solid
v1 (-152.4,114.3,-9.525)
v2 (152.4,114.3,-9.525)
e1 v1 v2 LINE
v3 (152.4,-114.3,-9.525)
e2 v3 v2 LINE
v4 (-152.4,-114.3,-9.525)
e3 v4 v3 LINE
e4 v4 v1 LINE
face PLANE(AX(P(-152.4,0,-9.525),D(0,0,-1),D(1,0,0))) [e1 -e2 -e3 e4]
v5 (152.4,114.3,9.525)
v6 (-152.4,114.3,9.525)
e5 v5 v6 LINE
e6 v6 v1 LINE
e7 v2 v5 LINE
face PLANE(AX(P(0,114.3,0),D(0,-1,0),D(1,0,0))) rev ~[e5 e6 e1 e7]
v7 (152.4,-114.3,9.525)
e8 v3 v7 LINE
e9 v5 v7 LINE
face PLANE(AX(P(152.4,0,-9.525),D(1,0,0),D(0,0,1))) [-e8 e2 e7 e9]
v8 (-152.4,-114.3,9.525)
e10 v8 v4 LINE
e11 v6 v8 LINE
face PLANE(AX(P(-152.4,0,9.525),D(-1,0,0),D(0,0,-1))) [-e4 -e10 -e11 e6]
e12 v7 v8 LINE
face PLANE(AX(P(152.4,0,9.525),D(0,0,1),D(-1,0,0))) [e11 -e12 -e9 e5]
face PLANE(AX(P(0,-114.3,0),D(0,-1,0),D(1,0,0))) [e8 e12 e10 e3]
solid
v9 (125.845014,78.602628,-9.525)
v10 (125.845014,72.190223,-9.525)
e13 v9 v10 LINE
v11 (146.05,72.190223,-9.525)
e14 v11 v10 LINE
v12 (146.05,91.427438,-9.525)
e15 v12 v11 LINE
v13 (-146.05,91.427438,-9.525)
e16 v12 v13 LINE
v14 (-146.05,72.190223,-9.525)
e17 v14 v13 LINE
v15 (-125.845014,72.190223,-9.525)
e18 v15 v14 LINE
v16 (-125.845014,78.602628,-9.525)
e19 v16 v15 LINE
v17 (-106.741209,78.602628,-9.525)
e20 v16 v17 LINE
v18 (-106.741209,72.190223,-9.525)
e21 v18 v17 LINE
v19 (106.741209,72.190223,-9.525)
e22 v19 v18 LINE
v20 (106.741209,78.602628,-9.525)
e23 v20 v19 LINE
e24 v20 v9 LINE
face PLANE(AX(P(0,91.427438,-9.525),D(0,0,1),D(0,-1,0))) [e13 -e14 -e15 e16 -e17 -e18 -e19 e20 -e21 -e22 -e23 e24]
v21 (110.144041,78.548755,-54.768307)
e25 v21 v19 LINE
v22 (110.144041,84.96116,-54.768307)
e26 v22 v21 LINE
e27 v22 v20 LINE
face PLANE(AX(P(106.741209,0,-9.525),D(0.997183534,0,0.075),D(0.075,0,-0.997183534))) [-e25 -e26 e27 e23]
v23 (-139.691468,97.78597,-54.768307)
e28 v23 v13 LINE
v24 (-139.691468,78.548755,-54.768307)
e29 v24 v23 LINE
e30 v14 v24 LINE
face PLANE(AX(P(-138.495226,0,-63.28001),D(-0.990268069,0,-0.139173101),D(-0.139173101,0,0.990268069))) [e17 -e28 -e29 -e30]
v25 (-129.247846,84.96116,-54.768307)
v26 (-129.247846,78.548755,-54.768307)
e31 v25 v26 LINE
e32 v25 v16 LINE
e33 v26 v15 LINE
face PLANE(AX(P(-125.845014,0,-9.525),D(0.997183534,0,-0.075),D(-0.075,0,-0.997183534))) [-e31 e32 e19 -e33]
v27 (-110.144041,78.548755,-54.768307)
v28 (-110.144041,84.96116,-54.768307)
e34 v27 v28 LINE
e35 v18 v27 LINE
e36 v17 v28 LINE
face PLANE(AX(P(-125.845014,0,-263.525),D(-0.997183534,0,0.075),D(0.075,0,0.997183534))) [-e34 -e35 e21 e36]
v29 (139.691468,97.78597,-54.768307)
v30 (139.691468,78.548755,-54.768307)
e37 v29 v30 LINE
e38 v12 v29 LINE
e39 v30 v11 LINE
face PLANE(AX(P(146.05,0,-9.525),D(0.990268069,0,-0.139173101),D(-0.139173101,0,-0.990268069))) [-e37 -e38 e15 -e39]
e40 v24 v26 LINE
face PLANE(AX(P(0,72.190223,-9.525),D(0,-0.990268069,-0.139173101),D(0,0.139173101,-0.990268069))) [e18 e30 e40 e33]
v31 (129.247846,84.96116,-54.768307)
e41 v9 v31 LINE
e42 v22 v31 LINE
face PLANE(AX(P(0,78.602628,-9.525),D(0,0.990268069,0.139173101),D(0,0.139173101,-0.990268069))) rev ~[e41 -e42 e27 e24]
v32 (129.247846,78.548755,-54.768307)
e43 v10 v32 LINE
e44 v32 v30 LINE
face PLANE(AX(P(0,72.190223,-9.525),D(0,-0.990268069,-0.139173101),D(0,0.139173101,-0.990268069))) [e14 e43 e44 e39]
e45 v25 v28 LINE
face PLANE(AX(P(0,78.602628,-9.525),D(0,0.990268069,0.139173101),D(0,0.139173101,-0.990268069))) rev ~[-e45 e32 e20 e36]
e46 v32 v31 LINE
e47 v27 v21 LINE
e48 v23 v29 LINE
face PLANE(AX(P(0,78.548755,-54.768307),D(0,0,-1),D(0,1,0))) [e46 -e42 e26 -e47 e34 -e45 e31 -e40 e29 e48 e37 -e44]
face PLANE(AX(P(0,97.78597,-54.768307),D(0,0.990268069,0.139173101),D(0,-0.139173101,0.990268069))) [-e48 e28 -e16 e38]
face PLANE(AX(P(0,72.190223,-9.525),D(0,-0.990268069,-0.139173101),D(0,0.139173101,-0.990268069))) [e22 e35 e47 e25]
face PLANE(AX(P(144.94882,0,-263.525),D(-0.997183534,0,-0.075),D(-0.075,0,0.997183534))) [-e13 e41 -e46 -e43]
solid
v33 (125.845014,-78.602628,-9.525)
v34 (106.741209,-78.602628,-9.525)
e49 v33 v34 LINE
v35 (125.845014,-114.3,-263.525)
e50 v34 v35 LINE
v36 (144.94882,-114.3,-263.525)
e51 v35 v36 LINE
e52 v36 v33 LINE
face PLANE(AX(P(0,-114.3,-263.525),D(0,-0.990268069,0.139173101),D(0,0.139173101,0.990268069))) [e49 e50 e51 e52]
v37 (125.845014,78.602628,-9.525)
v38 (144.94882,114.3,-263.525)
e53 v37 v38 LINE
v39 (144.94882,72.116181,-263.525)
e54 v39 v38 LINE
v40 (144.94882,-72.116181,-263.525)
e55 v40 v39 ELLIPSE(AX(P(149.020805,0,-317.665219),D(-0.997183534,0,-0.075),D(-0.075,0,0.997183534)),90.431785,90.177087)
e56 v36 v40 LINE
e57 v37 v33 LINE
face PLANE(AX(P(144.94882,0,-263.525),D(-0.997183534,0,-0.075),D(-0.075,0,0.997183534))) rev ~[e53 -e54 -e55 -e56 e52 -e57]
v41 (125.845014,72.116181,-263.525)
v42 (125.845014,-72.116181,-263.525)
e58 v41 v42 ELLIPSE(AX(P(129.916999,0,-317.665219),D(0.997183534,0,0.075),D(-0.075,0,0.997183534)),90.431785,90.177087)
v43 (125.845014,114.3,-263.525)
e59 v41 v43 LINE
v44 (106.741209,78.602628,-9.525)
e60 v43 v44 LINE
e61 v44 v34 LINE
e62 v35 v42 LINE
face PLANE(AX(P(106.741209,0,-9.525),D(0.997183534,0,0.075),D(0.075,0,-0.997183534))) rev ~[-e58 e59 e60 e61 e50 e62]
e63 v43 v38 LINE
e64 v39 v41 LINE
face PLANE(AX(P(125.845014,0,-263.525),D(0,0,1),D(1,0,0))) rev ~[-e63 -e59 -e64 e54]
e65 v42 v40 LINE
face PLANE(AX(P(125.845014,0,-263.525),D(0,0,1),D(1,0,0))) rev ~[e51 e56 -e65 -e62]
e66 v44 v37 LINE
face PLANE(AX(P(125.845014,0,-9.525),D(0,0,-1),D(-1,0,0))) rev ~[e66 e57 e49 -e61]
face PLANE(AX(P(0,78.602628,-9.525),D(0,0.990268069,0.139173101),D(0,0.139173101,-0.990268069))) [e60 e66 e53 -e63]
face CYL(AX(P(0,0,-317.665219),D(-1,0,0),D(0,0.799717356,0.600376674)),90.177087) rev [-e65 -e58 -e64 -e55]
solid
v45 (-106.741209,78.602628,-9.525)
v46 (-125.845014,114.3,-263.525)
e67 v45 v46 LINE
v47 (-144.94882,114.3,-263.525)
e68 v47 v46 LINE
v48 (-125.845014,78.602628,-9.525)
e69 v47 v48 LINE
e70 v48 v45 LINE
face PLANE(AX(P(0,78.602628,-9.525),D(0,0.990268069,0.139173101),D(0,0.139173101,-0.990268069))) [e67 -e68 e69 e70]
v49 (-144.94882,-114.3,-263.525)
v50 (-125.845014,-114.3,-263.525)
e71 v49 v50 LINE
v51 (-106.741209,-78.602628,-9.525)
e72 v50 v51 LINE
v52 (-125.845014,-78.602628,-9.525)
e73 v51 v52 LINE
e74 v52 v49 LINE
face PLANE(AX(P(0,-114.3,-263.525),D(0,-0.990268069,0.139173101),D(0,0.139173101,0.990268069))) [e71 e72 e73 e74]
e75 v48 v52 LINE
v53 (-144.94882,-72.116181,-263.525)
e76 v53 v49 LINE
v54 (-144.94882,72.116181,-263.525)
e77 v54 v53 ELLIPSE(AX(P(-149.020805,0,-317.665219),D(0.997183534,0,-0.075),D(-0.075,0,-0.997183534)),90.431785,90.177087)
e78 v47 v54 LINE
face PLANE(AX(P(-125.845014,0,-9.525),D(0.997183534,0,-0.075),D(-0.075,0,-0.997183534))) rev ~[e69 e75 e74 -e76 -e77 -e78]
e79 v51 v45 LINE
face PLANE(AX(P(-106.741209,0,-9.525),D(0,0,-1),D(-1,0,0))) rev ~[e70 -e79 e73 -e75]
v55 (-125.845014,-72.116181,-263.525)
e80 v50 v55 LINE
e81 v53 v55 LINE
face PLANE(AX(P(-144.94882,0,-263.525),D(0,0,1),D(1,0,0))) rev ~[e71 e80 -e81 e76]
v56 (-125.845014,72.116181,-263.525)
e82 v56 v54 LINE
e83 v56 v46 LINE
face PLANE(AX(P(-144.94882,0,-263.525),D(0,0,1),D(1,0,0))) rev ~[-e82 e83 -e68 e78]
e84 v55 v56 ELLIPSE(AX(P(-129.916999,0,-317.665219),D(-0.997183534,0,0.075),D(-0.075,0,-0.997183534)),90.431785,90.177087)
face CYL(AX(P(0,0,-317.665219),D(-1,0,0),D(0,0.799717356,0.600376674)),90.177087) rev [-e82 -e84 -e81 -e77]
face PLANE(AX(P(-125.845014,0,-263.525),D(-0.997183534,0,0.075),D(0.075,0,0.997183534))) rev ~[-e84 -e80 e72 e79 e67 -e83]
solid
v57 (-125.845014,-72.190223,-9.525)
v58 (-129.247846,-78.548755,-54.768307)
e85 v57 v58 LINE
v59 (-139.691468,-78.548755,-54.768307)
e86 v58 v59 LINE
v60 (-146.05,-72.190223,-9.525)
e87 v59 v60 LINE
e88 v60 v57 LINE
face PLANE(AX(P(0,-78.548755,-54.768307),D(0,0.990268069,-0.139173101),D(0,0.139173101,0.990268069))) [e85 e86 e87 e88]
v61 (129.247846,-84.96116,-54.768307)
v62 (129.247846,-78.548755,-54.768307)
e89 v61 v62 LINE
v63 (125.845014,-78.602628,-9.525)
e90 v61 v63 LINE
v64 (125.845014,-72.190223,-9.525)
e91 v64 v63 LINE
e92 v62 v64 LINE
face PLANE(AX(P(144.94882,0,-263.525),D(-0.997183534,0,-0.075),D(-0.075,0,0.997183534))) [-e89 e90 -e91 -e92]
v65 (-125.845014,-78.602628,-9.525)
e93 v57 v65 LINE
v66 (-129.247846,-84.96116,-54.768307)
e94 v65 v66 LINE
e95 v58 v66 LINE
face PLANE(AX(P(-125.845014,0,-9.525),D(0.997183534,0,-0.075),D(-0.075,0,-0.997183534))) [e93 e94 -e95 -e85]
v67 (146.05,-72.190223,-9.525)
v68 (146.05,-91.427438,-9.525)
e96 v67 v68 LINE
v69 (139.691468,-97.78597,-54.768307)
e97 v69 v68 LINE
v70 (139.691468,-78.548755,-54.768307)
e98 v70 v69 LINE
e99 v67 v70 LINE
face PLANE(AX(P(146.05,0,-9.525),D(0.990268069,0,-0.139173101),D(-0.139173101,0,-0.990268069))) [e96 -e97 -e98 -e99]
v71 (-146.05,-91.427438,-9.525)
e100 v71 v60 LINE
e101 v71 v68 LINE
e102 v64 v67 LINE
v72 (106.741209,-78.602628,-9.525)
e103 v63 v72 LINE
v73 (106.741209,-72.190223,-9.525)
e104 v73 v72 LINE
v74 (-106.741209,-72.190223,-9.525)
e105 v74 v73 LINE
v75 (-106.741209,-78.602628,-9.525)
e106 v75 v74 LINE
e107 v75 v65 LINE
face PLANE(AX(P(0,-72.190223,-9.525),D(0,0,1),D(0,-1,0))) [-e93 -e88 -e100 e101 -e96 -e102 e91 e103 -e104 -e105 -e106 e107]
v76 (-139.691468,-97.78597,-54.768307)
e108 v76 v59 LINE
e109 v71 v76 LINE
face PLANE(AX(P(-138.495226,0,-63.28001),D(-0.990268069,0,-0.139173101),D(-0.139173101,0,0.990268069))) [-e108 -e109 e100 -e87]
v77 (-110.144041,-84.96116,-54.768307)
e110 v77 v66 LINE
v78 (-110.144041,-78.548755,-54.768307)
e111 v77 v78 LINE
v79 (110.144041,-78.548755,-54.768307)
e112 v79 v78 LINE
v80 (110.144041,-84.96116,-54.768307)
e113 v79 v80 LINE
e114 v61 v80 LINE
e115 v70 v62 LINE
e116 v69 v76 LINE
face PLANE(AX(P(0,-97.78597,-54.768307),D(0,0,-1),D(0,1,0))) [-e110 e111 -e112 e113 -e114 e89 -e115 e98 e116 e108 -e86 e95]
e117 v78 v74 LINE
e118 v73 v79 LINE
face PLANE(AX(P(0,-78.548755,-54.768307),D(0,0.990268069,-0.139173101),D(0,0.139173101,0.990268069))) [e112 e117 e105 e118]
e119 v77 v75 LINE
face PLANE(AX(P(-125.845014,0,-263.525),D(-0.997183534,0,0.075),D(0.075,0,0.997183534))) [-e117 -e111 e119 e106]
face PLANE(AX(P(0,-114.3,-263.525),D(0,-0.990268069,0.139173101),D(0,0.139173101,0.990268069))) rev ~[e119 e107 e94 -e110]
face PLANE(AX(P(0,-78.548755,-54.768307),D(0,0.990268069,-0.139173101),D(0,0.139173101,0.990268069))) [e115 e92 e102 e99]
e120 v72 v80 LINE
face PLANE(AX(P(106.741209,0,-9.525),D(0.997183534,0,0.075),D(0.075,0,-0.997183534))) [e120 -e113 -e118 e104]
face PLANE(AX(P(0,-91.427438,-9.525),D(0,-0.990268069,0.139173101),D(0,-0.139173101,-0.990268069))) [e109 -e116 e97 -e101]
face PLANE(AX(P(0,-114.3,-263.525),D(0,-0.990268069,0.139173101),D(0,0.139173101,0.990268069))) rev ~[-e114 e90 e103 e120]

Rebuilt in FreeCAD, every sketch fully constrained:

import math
import FreeCAD as App
import Part
import Sketcher

V = App.Vector
Q = App.Units.Quantity


def add_polygon(sketch, points):
    """Adds a closed chain of lines whose ends are joined by coincident constraints."""
    first, n = sketch.GeometryCount, len(points)
    for a, b in zip(points, points[1:] + points[:1]):
        sketch.addGeometry(Part.LineSegment(App.Vector(*a, 0), App.Vector(*b, 0)), False)
    for i in range(n):
        sketch.addConstraint(Sketcher.Constraint("Coincident", first + i, 2, first + (i + 1) % n, 1))

doc = App.newDocument("Part")
body = doc.addObject("PartDesign::Body", "Body")

sketch1 = doc.addObject("Sketcher::SketchObject", "Sketch")
body.addObject(sketch1)
sketch1.AttachmentSupport = (doc.XZ_Plane, [""])
sketch1.MapMode = "FlatFace"
add_polygon(sketch1, [(152.4, -9.525), (152.4, 9.525), (-152.4, 9.525), (-152.4, -9.525)])
sketch1.addConstraint(Sketcher.Constraint("Vertical", 0))
sketch1.addConstraint(Sketcher.Constraint("Horizontal", 1))
sketch1.addConstraint(Sketcher.Constraint("Vertical", 2))
sketch1.addConstraint(Sketcher.Constraint("Horizontal", 3))
sketch1.addConstraint(Sketcher.Constraint("Symmetric", 0, 2, 2, 2, -1, 1))
sketch1.addConstraint(Sketcher.Constraint("DistanceX", 1, 2, 1, 1, Q("12 in")))
sketch1.addConstraint(Sketcher.Constraint("DistanceY", 0, 1, 0, 2, Q("0.75 in")))
pad1 = doc.addObject("PartDesign::Pad", "Pad")
body.addObject(pad1)
pad1.Profile = sketch1
pad1.Length = Q("9 in")
pad1.Midplane = True
body2 = doc.addObject("PartDesign::Body", "Body001")

sketch2 = doc.addObject("Sketcher::SketchObject", "Sketch001")
body2.addObject(sketch2)
sketch2.AttachmentSupport = (doc.getObject("XZ_Plane001"), [""])
sketch2.MapMode = "FlatFace"
add_polygon(sketch2, [(144.94882, -263.525), (125.845014, -9.525), (106.741209, -9.525), (125.845014, -263.525)])
sketch2.addConstraint(Sketcher.Constraint("Horizontal", 1))
sketch2.addConstraint(Sketcher.Constraint("Horizontal", 3))
sketch2.addConstraint(Sketcher.Constraint("Parallel", 0, 2))
sketch2.addConstraint(Sketcher.Constraint("Vertical", 0, 2, 2, 2))
sketch2.addConstraint(Sketcher.Constraint("DistanceY", 2, 2, 0, 2, Q("10 in")))
sketch2.addConstraint(Sketcher.Constraint("DistanceY", 0, 2, -1, 1, Q("0.375 in")))
sketch2.addConstraint(Sketcher.Constraint("DistanceX", 1, 2, 1, 1, Q("19.103805 mm")))
sketch2.addConstraint(Sketcher.Constraint("DistanceX", -1, 1, 1, 2, Q("106.741209 mm")))
pad2 = doc.addObject("PartDesign::Pad", "Pad001")
body2.addObject(pad2)
pad2.Profile = sketch2
pad2.Type = "TwoLengths"
pad2.Length = Q("4.5 in")
pad2.Length2 = Q("4.5 in")
pad2.Reversed = True
body3 = doc.addObject("PartDesign::Body", "Body002")

sketch3 = doc.addObject("Sketcher::SketchObject", "Sketch002")
body3.addObject(sketch3)
sketch3.AttachmentSupport = (doc.getObject("XZ_Plane002"), [""])
sketch3.MapMode = "FlatFace"
add_polygon(sketch3, [(-106.741209, -9.525), (-125.845014, -9.525), (-144.94882, -263.525), (-125.845014, -263.525)])
sketch3.addConstraint(Sketcher.Constraint("Horizontal", 0))
sketch3.addConstraint(Sketcher.Constraint("Horizontal", 2))
sketch3.addConstraint(Sketcher.Constraint("Parallel", 1, 3))
sketch3.addConstraint(Sketcher.Constraint("Vertical", 0, 2, 2, 2))
sketch3.addConstraint(Sketcher.Constraint("DistanceY", 1, 2, 0, 2, Q("10 in")))
sketch3.addConstraint(Sketcher.Constraint("DistanceY", 0, 2, -1, 1, Q("0.375 in")))
sketch3.addConstraint(Sketcher.Constraint("DistanceX", 0, 2, 0, 1, Q("19.103805 mm")))
sketch3.addConstraint(Sketcher.Constraint("DistanceX", 1, 2, -1, 1, Q("144.94882 mm")))
pad3 = doc.addObject("PartDesign::Pad", "Pad002")
body3.addObject(pad3)
pad3.Profile = sketch3
pad3.Type = "TwoLengths"
pad3.Length = Q("4.5 in")
pad3.Length2 = Q("4.5 in")
pad3.Reversed = True
body4 = doc.addObject("PartDesign::Body", "Body003")
body4.AllowCompound = True

sketch4 = doc.addObject("Sketcher::SketchObject", "Sketch003")
body4.addObject(sketch4)
sketch4.AttachmentSupport = (doc.getObject("YZ_Plane003"), [""])
sketch4.MapMode = "FlatFace"
add_polygon(sketch4, [(114.3, -9.525), (78.602628, -9.525), (114.3, -263.525)])
sketch4.addGeometry(Part.ArcOfCircle(Part.Circle(V(0, -317.665219, 0), V(0, 0, 1), 90.177087), math.radians(36.89688), math.radians(143.10312)), False)
sketch4.addGeometry(Part.LineSegment(V(-72.116181, -263.525, 0), V(72.116181, -263.525, 0)), False)
add_polygon(sketch4, [(-114.3, -9.525), (-114.3, -263.525), (-78.602628, -9.525)])
sketch4.addConstraint(Sketcher.Constraint("Coincident", 3, 1, 4, 2))
sketch4.addConstraint(Sketcher.Constraint("Coincident", 4, 1, 3, 2))
sketch4.addConstraint(Sketcher.Constraint("Horizontal", 0))
sketch4.addConstraint(Sketcher.Constraint("Vertical", 2))
sketch4.addConstraint(Sketcher.Constraint("Horizontal", 4))
sketch4.addConstraint(Sketcher.Constraint("Vertical", 5))
sketch4.addConstraint(Sketcher.Constraint("Horizontal", 7))
sketch4.addConstraint(Sketcher.Constraint("Symmetric", 1, 2, 5, 2, -2))
sketch4.addConstraint(Sketcher.Constraint("Symmetric", 0, 2, 6, 2, -2))
sketch4.addConstraint(Sketcher.Constraint("PointOnObject", 3, 3, -2))
sketch4.addConstraint(Sketcher.Constraint("Horizontal", 1, 2, 3, 1))
sketch4.addConstraint(Sketcher.Constraint("DistanceY", 2, 1, 2, 2, Q("10 in")))
sketch4.addConstraint(Sketcher.Constraint("Angle", 1, Q("-82 deg")))
sketch4.addConstraint(Sketcher.Constraint("DistanceX", 5, 2, 1, 2, Q("9 in")))
sketch4.addConstraint(Sketcher.Constraint("DistanceY", 0, 2, -1, 1, Q("0.375 in")))
sketch4.addConstraint(Sketcher.Constraint("Radius", 3, Q("90.177087 mm")))
sketch4.addConstraint(Sketcher.Constraint("DistanceX", 4, 1, 4, 2, Q("144.232363 mm")))
pad4 = doc.addObject("PartDesign::Pad", "Pad003")
body4.addObject(pad4)
pad4.Profile = sketch4
pad4.Type = "TwoLengths"
pad4.Length = 152.401
pad4.Length2 = 152.401
pad4.Reversed = True
doc.recompute()

body5 = doc.addObject("PartDesign::Body", "Body004")
body5.BaseFeature = body4
boolean = doc.addObject("PartDesign::Boolean", "Boolean")
body2.addObject(boolean)
boolean.Type = "Cut"
boolean.addObjects([body5])
doc.recompute()

boolean2 = doc.addObject("PartDesign::Boolean", "Boolean001")
body3.addObject(boolean2)
boolean2.Type = "Cut"
boolean2.addObjects([body4])
body6 = doc.addObject("PartDesign::Body", "Body005")

sketch5 = doc.addObject("Sketcher::SketchObject", "Sketch004")
body6.addObject(sketch5)
sketch5.AttachmentSupport = (doc.getObject("YZ_Plane005"), [""])
sketch5.MapMode = "FlatFace"
add_polygon(sketch5, [(72.190223, -9.525), (78.548755, -54.768307), (97.78597, -54.768307), (91.427438, -9.525)])
sketch5.addConstraint(Sketcher.Constraint("Horizontal", 1))
sketch5.addConstraint(Sketcher.Constraint("Horizontal", 3))
sketch5.addConstraint(Sketcher.Constraint("Parallel", 0, 2))
sketch5.addConstraint(Sketcher.Constraint("Angle", 0, Q("-82 deg")))
sketch5.addConstraint(Sketcher.Constraint("DistanceY", 2, 2, -1, 1, Q("0.375 in")))
sketch5.addConstraint(Sketcher.Constraint("Distance", 0, Q("45.687938 mm")))
sketch5.addConstraint(Sketcher.Constraint("DistanceX", 1, 1, 1, 2, Q("19.237215 mm")))
sketch5.addConstraint(Sketcher.Constraint("DistanceX", -1, 1, 1, 2, Q("97.78597 mm")))
pad5 = doc.addObject("PartDesign::Pad", "Pad004")
body6.addObject(pad5)
pad5.Profile = sketch5
pad5.Type = "TwoLengths"
pad5.Length = Q("6 in")
pad5.Length2 = Q("6 in")
body7 = doc.addObject("PartDesign::Body", "Body006")

sketch6 = doc.addObject("Sketcher::SketchObject", "Sketch005")
body7.addObject(sketch6)
sketch6.AttachmentSupport = (doc.getObject("YZ_Plane006"), [""])
sketch6.MapMode = "FlatFace"
add_polygon(sketch6, [(-78.548755, -54.768307), (-72.190223, -9.525), (-91.427438, -9.525), (-97.78597, -54.768307)])
sketch6.addConstraint(Sketcher.Constraint("Horizontal", 1))
sketch6.addConstraint(Sketcher.Constraint("Horizontal", 3))
sketch6.addConstraint(Sketcher.Constraint("Parallel", 0, 2))
sketch6.addConstraint(Sketcher.Constraint("Angle", 0, Q("82 deg")))
sketch6.addConstraint(Sketcher.Constraint("DistanceY", 0, 2, -1, 1, Q("0.375 in")))
sketch6.addConstraint(Sketcher.Constraint("Distance", 0, Q("45.687938 mm")))
sketch6.addConstraint(Sketcher.Constraint("DistanceX", 1, 2, 1, 1, Q("19.237215 mm")))
sketch6.addConstraint(Sketcher.Constraint("DistanceX", 1, 2, -1, 1, Q("91.427438 mm")))
pad6 = doc.addObject("PartDesign::Pad", "Pad005")
body7.addObject(pad6)
pad6.Profile = sketch6
pad6.Type = "TwoLengths"
pad6.Length = Q("6 in")
pad6.Length2 = Q("6 in")
body8 = doc.addObject("PartDesign::Body", "Body007")
body8.AllowCompound = True

sketch7 = doc.addObject("Sketcher::SketchObject", "Sketch006")
body8.addObject(sketch7)
sketch7.AttachmentSupport = (doc.getObject("XZ_Plane007"), [""])
sketch7.MapMode = "FlatFace"
add_polygon(sketch7, [(-146.05, -9.525), (-152.4, -9.525), (-152.4, -63.28001), (-138.495226, -63.28001)])
add_polygon(sketch7, [(152.4, -63.28001), (152.4, -9.525), (146.05, -9.525), (138.495226, -63.28001)])
sketch7.addConstraint(Sketcher.Constraint("Horizontal", 0))
sketch7.addConstraint(Sketcher.Constraint("Vertical", 1))
sketch7.addConstraint(Sketcher.Constraint("Horizontal", 2))
sketch7.addConstraint(Sketcher.Constraint("Vertical", 4))
sketch7.addConstraint(Sketcher.Constraint("Horizontal", 5))
sketch7.addConstraint(Sketcher.Constraint("Horizontal", 7))
sketch7.addConstraint(Sketcher.Constraint("Symmetric", 0, 2, 4, 2, -2))
sketch7.addConstraint(Sketcher.Constraint("Symmetric", 2, 2, 6, 2, -2))
sketch7.addConstraint(Sketcher.Constraint("Equal", 0, 5))
sketch7.addConstraint(Sketcher.Constraint("DistanceX", 0, 2, -1, 1, Q("6 in")))
sketch7.addConstraint(Sketcher.Constraint("Angle", 3, Q("98 deg")))
sketch7.addConstraint(Sketcher.Constraint("DistanceX", 0, 2, 0, 1, Q("0.25 in")))
sketch7.addConstraint(Sketcher.Constraint("DistanceY", 0, 2, -1, 1, Q("0.375 in")))
sketch7.addConstraint(Sketcher.Constraint("DistanceY", 1, 2, 1, 1, Q("53.75501 mm")))
pad7 = doc.addObject("PartDesign::Pad", "Pad006")
body8.addObject(pad7)
pad7.Profile = sketch7
pad7.Type = "TwoLengths"
pad7.Length = 114.301
pad7.Length2 = 114.301
pad7.Reversed = True
doc.recompute()

body9 = doc.addObject("PartDesign::Body", "Body008")
body9.BaseFeature = body8
boolean3 = doc.addObject("PartDesign::Boolean", "Boolean002")
body6.addObject(boolean3)
boolean3.Type = "Cut"
boolean3.addObjects([body9])
doc.recompute()

body10 = doc.addObject("PartDesign::Body", "Body009")
body10.BaseFeature = body3
boolean4 = doc.addObject("PartDesign::Boolean", "Boolean003")
body6.addObject(boolean4)
boolean4.Type = "Cut"
boolean4.addObjects([body10])
doc.recompute()

body11 = doc.addObject("PartDesign::Body", "Body010")
body11.BaseFeature = body2
boolean5 = doc.addObject("PartDesign::Boolean", "Boolean004")
body6.addObject(boolean5)
boolean5.Type = "Cut"
boolean5.addObjects([body11])
doc.recompute()

boolean6 = doc.addObject("PartDesign::Boolean", "Boolean005")
body7.addObject(boolean6)
boolean6.Type = "Cut"
boolean6.addObjects([body8])
doc.recompute()

body12 = doc.addObject("PartDesign::Body", "Body011")
body12.BaseFeature = body2
boolean7 = doc.addObject("PartDesign::Boolean", "Boolean006")
body7.addObject(boolean7)
boolean7.Type = "Cut"
boolean7.addObjects([body12])
doc.recompute()

body13 = doc.addObject("PartDesign::Body", "Body012")
body13.BaseFeature = body3
boolean8 = doc.addObject("PartDesign::Boolean", "Boolean007")
body7.addObject(boolean8)
boolean8.Type = "Cut"
boolean8.addObjects([body13])
doc.recompute()

doc.recompute()
